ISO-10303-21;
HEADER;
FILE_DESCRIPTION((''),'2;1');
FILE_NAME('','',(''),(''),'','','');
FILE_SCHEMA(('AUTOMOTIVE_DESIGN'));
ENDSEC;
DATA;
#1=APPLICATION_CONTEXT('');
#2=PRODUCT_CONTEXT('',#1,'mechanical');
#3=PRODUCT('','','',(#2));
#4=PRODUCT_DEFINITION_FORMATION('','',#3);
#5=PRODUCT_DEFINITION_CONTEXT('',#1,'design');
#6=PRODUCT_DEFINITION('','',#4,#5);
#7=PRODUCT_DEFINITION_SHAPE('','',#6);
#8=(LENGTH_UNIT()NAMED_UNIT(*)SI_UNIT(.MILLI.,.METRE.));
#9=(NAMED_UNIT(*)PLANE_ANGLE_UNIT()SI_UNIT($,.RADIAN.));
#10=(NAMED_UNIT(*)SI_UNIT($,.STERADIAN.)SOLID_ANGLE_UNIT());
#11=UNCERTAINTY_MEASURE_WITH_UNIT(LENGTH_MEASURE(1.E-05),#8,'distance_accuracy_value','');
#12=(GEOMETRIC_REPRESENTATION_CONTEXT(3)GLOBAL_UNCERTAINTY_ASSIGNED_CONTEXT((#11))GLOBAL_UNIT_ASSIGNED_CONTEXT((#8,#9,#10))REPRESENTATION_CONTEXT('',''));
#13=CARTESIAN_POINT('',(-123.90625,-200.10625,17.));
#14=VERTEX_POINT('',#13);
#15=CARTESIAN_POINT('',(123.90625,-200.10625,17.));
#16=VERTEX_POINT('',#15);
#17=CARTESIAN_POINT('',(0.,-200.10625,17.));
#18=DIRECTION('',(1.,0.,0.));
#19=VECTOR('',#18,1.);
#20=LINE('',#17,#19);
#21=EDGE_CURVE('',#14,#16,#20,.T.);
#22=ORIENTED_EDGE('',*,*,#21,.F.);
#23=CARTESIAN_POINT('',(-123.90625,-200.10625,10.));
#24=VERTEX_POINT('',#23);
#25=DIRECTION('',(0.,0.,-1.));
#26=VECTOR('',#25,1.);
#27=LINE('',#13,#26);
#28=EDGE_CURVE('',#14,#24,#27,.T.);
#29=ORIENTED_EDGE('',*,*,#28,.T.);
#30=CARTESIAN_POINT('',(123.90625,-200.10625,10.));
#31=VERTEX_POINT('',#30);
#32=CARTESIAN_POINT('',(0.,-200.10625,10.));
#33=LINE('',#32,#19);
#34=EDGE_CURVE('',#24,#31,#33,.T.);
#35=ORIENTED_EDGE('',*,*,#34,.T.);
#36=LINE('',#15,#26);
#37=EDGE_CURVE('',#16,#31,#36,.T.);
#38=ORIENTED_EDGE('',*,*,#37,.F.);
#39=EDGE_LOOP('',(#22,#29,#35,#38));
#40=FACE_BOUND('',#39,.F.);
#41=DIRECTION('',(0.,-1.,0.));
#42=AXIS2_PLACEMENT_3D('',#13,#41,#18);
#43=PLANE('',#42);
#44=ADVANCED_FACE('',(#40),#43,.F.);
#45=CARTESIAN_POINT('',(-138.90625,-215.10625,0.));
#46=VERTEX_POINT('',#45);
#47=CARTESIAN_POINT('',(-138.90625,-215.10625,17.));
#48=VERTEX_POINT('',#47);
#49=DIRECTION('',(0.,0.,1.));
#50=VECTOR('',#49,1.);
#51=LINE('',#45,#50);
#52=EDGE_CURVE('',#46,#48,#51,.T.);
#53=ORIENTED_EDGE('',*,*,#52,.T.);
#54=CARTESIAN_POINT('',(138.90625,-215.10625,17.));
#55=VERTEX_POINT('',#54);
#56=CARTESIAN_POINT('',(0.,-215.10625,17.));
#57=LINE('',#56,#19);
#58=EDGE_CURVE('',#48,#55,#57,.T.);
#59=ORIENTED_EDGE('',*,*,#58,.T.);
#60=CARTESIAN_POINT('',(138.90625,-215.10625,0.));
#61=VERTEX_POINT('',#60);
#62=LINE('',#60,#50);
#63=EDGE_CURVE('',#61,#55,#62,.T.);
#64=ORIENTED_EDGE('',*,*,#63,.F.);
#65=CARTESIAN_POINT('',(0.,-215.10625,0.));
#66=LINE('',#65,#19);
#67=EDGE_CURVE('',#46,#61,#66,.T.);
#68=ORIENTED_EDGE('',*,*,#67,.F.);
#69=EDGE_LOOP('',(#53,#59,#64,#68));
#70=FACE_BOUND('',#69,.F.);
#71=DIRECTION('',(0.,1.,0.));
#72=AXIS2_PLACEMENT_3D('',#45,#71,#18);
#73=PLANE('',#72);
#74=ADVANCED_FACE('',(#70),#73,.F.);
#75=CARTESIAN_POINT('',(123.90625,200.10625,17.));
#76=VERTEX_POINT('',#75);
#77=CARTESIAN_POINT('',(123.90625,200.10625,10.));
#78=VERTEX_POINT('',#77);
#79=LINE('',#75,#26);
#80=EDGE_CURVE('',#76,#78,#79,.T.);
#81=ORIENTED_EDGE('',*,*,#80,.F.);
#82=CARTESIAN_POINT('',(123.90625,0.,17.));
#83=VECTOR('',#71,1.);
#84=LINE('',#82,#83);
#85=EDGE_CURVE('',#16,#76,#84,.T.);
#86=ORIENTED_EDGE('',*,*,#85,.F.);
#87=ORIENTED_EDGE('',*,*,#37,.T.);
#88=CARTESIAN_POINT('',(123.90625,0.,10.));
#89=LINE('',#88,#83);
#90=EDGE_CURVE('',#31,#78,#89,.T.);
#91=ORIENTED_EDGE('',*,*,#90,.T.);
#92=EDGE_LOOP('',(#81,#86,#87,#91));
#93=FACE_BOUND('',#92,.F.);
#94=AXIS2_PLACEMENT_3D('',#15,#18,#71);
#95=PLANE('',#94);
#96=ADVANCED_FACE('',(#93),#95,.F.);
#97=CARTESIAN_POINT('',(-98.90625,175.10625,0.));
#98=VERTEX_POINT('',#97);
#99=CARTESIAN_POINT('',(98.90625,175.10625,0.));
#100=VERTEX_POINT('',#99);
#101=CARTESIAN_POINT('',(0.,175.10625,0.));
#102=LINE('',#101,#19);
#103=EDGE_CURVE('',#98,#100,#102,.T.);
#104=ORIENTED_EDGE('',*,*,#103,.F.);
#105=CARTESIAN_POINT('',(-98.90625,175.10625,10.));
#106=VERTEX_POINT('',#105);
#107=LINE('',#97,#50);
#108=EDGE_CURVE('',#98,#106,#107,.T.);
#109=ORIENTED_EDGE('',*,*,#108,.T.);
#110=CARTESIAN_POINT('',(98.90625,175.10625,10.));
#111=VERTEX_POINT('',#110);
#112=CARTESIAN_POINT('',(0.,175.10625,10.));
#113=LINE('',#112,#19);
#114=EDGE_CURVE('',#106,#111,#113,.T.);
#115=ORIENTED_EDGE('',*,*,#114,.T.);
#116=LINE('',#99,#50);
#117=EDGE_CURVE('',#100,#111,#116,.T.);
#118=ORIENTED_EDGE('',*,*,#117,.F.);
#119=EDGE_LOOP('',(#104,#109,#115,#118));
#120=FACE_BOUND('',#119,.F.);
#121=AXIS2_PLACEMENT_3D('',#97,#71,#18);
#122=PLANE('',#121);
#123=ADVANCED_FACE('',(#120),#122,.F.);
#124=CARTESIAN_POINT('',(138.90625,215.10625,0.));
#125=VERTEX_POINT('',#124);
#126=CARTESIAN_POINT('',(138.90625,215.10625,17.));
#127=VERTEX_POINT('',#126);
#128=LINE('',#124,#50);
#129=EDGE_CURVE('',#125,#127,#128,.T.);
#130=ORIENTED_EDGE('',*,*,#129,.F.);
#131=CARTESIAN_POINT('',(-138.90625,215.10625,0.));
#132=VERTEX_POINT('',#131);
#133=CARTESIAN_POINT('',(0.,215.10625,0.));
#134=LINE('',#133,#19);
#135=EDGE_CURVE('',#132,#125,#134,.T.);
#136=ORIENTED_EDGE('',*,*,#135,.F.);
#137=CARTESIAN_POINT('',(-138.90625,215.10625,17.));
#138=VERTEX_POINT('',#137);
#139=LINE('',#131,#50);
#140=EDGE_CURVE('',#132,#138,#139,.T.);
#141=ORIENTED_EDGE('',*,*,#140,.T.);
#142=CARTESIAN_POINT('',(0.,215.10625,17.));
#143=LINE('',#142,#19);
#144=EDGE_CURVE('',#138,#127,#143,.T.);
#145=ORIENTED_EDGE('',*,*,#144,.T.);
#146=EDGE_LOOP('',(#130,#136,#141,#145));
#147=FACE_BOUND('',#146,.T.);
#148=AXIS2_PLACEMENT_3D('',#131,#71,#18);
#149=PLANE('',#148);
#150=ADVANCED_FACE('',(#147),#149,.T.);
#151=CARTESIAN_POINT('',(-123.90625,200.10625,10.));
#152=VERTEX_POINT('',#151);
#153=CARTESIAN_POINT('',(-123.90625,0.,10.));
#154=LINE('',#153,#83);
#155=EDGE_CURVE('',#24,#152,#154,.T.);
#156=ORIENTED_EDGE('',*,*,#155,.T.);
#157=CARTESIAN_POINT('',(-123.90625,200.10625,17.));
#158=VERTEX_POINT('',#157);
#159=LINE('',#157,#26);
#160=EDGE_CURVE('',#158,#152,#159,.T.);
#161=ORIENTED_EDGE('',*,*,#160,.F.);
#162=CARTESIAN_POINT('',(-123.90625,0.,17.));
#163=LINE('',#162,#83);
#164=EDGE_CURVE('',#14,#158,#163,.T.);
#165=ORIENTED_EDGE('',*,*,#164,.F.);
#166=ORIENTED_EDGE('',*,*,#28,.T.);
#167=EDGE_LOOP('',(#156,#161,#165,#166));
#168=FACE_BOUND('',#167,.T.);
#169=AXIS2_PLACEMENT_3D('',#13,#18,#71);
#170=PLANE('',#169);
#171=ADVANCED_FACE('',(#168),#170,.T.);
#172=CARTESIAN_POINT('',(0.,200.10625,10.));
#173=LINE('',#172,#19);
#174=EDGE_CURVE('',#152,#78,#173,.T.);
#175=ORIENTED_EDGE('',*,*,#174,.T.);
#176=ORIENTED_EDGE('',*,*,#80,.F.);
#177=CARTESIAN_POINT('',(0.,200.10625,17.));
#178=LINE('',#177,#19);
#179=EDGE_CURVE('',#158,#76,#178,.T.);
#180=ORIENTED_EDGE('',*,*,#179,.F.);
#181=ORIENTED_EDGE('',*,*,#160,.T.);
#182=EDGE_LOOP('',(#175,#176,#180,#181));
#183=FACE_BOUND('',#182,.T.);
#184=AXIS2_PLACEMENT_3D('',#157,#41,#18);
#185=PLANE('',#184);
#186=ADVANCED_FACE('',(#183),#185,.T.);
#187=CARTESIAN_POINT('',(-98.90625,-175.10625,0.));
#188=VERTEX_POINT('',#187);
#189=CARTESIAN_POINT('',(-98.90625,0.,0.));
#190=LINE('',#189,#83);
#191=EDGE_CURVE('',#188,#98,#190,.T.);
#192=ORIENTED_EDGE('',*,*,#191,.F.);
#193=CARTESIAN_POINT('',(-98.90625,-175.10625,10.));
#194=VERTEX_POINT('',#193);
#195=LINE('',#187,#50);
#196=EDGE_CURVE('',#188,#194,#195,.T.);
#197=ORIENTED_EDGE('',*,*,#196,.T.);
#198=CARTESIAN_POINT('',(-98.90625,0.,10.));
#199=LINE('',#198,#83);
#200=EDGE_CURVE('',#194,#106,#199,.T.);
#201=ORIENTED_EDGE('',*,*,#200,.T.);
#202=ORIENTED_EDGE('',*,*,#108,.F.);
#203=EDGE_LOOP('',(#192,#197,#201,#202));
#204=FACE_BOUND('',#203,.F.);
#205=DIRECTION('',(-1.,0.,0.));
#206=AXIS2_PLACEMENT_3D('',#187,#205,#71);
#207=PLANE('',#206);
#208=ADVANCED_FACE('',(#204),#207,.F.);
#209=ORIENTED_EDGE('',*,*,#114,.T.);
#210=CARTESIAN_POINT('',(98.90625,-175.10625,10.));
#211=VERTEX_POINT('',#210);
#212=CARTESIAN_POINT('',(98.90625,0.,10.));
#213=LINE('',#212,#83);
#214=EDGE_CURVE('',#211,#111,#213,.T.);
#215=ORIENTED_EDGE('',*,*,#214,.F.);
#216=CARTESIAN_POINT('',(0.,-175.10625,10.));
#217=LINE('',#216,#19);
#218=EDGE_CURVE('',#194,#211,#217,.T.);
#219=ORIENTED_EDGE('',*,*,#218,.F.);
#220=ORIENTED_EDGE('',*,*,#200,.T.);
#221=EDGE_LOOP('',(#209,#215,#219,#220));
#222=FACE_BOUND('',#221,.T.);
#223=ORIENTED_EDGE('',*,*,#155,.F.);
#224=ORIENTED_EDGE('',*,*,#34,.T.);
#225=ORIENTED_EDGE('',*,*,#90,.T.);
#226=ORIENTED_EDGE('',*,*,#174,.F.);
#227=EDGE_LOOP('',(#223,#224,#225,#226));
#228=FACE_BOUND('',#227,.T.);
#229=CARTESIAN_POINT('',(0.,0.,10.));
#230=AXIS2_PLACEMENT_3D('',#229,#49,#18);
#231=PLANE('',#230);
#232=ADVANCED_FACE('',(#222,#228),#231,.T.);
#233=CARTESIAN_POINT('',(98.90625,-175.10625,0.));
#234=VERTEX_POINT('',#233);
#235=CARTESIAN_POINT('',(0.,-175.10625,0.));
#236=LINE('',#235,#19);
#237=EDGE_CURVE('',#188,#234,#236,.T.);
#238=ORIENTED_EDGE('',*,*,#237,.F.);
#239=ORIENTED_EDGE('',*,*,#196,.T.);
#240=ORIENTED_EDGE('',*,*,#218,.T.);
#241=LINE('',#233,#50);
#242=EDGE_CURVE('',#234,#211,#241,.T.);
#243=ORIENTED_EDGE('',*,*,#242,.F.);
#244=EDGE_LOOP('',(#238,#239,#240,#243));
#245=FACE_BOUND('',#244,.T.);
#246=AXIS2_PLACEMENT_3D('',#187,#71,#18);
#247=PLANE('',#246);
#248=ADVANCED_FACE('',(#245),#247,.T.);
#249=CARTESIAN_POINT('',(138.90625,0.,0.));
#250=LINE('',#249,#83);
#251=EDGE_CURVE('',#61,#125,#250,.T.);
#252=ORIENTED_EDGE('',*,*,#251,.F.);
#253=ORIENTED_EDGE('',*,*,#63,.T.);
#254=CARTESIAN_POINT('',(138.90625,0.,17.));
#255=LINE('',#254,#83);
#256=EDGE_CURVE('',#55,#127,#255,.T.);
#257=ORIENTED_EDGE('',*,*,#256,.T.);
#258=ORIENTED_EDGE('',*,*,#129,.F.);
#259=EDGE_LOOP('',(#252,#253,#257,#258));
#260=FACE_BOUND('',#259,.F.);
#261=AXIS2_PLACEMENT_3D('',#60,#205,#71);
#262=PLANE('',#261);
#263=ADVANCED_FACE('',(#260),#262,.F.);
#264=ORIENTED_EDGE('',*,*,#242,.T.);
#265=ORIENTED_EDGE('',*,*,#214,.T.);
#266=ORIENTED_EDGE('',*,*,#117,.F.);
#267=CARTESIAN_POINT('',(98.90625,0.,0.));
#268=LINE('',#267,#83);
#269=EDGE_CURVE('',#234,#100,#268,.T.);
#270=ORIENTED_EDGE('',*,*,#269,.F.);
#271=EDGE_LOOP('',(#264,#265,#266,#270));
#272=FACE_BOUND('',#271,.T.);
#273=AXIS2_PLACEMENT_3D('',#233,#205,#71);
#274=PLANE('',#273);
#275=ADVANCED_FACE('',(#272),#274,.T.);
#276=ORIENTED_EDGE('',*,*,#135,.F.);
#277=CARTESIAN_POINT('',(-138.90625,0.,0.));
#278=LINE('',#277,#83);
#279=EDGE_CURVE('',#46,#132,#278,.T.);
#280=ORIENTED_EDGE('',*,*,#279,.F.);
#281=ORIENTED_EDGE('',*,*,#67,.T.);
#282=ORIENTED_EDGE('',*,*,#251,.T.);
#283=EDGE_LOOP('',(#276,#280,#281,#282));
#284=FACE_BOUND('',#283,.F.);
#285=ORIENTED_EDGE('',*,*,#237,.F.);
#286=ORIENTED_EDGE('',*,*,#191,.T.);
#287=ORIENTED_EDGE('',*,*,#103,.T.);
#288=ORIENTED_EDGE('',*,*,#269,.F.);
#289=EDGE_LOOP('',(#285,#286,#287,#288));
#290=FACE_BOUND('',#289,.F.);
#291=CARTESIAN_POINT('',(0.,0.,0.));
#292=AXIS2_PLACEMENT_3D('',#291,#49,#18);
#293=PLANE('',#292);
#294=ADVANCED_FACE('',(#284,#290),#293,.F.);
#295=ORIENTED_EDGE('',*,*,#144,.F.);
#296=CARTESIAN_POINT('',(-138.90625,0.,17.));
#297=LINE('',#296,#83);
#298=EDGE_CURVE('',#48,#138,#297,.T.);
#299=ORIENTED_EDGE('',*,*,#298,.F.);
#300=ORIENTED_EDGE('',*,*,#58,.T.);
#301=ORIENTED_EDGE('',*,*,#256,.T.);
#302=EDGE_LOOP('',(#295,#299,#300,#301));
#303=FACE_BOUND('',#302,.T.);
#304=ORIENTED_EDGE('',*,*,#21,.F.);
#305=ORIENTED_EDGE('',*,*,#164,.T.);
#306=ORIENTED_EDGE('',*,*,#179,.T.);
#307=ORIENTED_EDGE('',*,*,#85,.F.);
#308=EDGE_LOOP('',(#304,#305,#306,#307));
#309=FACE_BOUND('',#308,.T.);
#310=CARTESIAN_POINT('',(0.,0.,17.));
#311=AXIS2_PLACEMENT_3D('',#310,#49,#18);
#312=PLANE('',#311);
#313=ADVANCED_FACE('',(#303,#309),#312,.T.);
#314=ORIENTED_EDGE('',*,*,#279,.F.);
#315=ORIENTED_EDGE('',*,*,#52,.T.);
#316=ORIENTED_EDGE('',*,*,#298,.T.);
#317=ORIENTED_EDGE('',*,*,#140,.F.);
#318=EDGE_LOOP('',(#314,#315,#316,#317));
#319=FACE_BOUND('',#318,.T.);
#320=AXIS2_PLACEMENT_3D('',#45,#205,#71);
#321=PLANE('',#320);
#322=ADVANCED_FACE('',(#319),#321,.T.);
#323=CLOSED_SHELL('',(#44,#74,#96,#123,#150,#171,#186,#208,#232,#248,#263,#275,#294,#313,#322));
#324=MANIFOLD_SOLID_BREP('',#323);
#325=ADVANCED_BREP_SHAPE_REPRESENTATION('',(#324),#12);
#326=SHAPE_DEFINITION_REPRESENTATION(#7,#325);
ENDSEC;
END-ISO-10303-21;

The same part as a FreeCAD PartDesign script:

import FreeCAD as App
import Part
import Sketcher
Q = App.Units.Quantity

doc = App.newDocument("Part")
body = doc.addObject("PartDesign::Body", "Body")

# Sketch on XY plane
sketch1 = body.newObject("Sketcher::SketchObject", "Sketch")
sketch1.AttachmentSupport = (doc.getObject("XY_Plane"), [""])
sketch1.MapMode = "FlatFace"
sketch1.addGeometry([
    Part.LineSegment(App.Vector(-139, 215, 0), App.Vector(-139, -215, 0)),  # 0
    Part.LineSegment(App.Vector(-139, -215, 0), App.Vector(139, -215, 0)),  # 1
    Part.LineSegment(App.Vector(139, -215, 0), App.Vector(139, 215, 0)),  # 2
    Part.LineSegment(App.Vector(139, 215, 0), App.Vector(-139, 215, 0)),  # 3
    Part.LineSegment(App.Vector(99, -175, 0), App.Vector(-99, -175, 0)),  # 4
    Part.LineSegment(App.Vector(-99, -175, 0), App.Vector(-99, 175, 0)),  # 5
    Part.LineSegment(App.Vector(-99, 175, 0), App.Vector(99, 175, 0)),  # 6
    Part.LineSegment(App.Vector(99, 175, 0), App.Vector(99, -175, 0)),  # 7
], False)
sketch1.addConstraint([
    Sketcher.Constraint("Coincident", 0, 2, 1, 1),
    Sketcher.Constraint("Coincident", 1, 2, 2, 1),
    Sketcher.Constraint("Coincident", 2, 2, 3, 1),
    Sketcher.Constraint("Coincident", 3, 2, 0, 1),
    Sketcher.Constraint("Coincident", 4, 2, 5, 1),
    Sketcher.Constraint("Coincident", 5, 2, 6, 1),
    Sketcher.Constraint("Coincident", 6, 2, 7, 1),
    Sketcher.Constraint("Coincident", 7, 2, 4, 1),
    Sketcher.Constraint("Vertical", 0),
    Sketcher.Constraint("Horizontal", 1),
    Sketcher.Constraint("Vertical", 2),
    Sketcher.Constraint("Horizontal", 3),
    Sketcher.Constraint("Horizontal", 4),
    Sketcher.Constraint("Vertical", 5),
    Sketcher.Constraint("Horizontal", 6),
    Sketcher.Constraint("Vertical", 7),
    Sketcher.Constraint("Symmetric", 0, 2, 2, 2, -1, 1),
    Sketcher.Constraint("Symmetric", 4, 2, 6, 2, -1, 1),
    Sketcher.Constraint("DistanceX", 0, 2, 4, 2, Q("40 mm")),
    Sketcher.Constraint("DistanceY", 0, 2, 4, 2, Q("40 mm")),
    Sketcher.Constraint("DistanceX", 1, 1, 1, 2, Q("277.8125 mm")),
    Sketcher.Constraint("DistanceY", 0, 2, 0, 1, Q("430.2125 mm")),
])
pad1 = body.newObject("PartDesign::Pad", "Pad")
pad1.Profile = sketch1
pad1.Length = 17

# Sketch on XY plane
sketch2 = body.newObject("Sketcher::SketchObject", "Sketch001")
sketch2.AttachmentSupport = (doc.getObject("XY_Plane"), [""])
sketch2.MapMode = "FlatFace"
sketch2.AttachmentOffset = App.Placement(App.Vector(0, 0, 17), App.Rotation())
sketch2.addGeometry([
    Part.LineSegment(App.Vector(-124, 200, 0), App.Vector(-124, -200, 0)),  # 0
    Part.LineSegment(App.Vector(-124, -200, 0), App.Vector(124, -200, 0)),  # 1
    Part.LineSegment(App.Vector(124, -200, 0), App.Vector(124, 200, 0)),  # 2
    Part.LineSegment(App.Vector(124, 200, 0), App.Vector(-124, 200, 0)),  # 3
    Part.LineSegment(App.Vector(99, -175, 0), App.Vector(-99, -175, 0)),  # 4
    Part.LineSegment(App.Vector(-99, -175, 0), App.Vector(-99, 175, 0)),  # 5
    Part.LineSegment(App.Vector(-99, 175, 0), App.Vector(99, 175, 0)),  # 6
    Part.LineSegment(App.Vector(99, 175, 0), App.Vector(99, -175, 0)),  # 7
], False)
sketch2.addConstraint([
    Sketcher.Constraint("Coincident", 0, 2, 1, 1),
    Sketcher.Constraint("Coincident", 1, 2, 2, 1),
    Sketcher.Constraint("Coincident", 2, 2, 3, 1),
    Sketcher.Constraint("Coincident", 3, 2, 0, 1),
    Sketcher.Constraint("Coincident", 4, 2, 5, 1),
    Sketcher.Constraint("Coincident", 5, 2, 6, 1),
    Sketcher.Constraint("Coincident", 6, 2, 7, 1),
    Sketcher.Constraint("Coincident", 7, 2, 4, 1),
    Sketcher.Constraint("Vertical", 0),
    Sketcher.Constraint("Horizontal", 1),
    Sketcher.Constraint("Vertical", 2),
    Sketcher.Constraint("Horizontal", 3),
    Sketcher.Constraint("Horizontal", 4),
    Sketcher.Constraint("Vertical", 5),
    Sketcher.Constraint("Horizontal", 6),
    Sketcher.Constraint("Vertical", 7),
    Sketcher.Constraint("Symmetric", 0, 2, 2, 2, -1, 1),
    Sketcher.Constraint("Symmetric", 4, 2, 6, 2, -1, 1),
    Sketcher.Constraint("DistanceX", 0, 2, 4, 2, Q("25 mm")),
    Sketcher.Constraint("DistanceY", 0, 2, 4, 2, Q("25 mm")),
    Sketcher.Constraint("DistanceX", 1, 1, 1, 2, Q("247.8125 mm")),
    Sketcher.Constraint("DistanceY", 0, 2, 0, 1, Q("400.2125 mm")),
])
pocket1 = body.newObject("PartDesign::Pocket", "Pocket")
pocket1.Profile = sketch2
pocket1.Length = 7

doc.recompute()
